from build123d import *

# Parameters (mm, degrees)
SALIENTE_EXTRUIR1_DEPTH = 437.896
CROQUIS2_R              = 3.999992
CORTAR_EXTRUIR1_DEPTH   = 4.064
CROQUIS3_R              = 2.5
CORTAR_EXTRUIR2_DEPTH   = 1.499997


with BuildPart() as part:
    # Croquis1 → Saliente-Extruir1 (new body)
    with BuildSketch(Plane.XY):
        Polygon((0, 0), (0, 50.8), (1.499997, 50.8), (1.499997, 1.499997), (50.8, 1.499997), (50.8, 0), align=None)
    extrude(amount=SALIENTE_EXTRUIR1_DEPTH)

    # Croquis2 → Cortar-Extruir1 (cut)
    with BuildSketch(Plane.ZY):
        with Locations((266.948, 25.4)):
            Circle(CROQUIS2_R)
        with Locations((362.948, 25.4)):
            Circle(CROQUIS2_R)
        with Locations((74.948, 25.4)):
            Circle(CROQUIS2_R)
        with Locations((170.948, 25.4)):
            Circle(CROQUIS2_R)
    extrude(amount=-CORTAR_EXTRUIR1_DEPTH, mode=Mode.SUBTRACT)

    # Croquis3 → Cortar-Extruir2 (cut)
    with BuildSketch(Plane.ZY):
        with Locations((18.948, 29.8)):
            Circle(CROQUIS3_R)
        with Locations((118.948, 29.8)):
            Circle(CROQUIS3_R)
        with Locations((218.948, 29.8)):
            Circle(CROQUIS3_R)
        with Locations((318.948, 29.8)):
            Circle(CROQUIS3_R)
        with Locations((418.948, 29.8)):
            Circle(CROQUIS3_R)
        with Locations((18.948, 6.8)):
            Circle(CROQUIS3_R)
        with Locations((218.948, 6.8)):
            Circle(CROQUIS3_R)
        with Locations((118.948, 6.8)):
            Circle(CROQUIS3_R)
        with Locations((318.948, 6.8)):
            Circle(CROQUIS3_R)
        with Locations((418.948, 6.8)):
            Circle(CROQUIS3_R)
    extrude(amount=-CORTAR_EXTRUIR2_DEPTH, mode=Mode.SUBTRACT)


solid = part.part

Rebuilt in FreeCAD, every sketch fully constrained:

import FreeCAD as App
import Part
import Sketcher

V = App.Vector
Q = App.Units.Quantity


def add_polygon(sketch, points):
    """Adds a closed chain of lines whose ends are joined by coincident constraints."""
    first, n = sketch.GeometryCount, len(points)
    for a, b in zip(points, points[1:] + points[:1]):
        sketch.addGeometry(Part.LineSegment(App.Vector(*a, 0), App.Vector(*b, 0)), False)
    for i in range(n):
        sketch.addConstraint(Sketcher.Constraint("Coincident", first + i, 2, first + (i + 1) % n, 1))

doc = App.newDocument("Part")
body = doc.addObject("PartDesign::Body", "Body")

# Sketch on XY plane
sketch1 = doc.addObject("Sketcher::SketchObject", "Sketch")
body.addObject(sketch1)
sketch1.AttachmentSupport = (doc.XY_Plane, [""])
sketch1.MapMode = "FlatFace"
add_polygon(sketch1, [(0, 50.8), (0, 0), (50.8, 0), (50.8, 1.5), (1.5, 1.5), (1.5, 50.8)])  # lines 0-5
sketch1.addConstraint(Sketcher.Constraint("Vertical", 0))
sketch1.addConstraint(Sketcher.Constraint("Horizontal", 1))
sketch1.addConstraint(Sketcher.Constraint("Vertical", 2))
sketch1.addConstraint(Sketcher.Constraint("Horizontal", 3))
sketch1.addConstraint(Sketcher.Constraint("Vertical", 4))
sketch1.addConstraint(Sketcher.Constraint("Horizontal", 5))
sketch1.addConstraint(Sketcher.Constraint("Coincident", 0, 2, -1, 1))
sketch1.addConstraint(Sketcher.Constraint("Equal", 1, 0))
sketch1.addConstraint(Sketcher.Constraint("Equal", 5, 2))
sketch1.addConstraint(Sketcher.Constraint("DistanceX", 1, 1, 1, 2, Q("2 in")))
sketch1.addConstraint(Sketcher.Constraint("DistanceX", 3, 2, 3, 1, 49.300003))
pad1 = doc.addObject("PartDesign::Pad", "Pad")
body.addObject(pad1)
pad1.Profile = sketch1
pad1.Length = Q("17.24 in")

# Sketch on YZ plane
sketch2 = doc.addObject("Sketcher::SketchObject", "Sketch001")
body.addObject(sketch2)
sketch2.AttachmentSupport = (doc.YZ_Plane, [""])
sketch2.MapMode = "FlatFace"
sketch2.addGeometry(Part.Circle(V(25.4, 266.9, 0), V(0, 0, 1), 4), False)
sketch2.addGeometry(Part.Circle(V(25.4, 362.9, 0), V(0, 0, 1), 4), False)
sketch2.addGeometry(Part.Circle(V(25.4, 74.9, 0), V(0, 0, 1), 4), False)
sketch2.addGeometry(Part.Circle(V(25.4, 170.9, 0), V(0, 0, 1), 4), False)
sketch2.addConstraint(Sketcher.Constraint("Equal", 0, 1))
sketch2.addConstraint(Sketcher.Constraint("Equal", 1, 2))
sketch2.addConstraint(Sketcher.Constraint("Equal", 2, 3))
sketch2.addConstraint(Sketcher.Constraint("Vertical", 0, 3, 1, 3))
sketch2.addConstraint(Sketcher.Constraint("Vertical", 1, 3, 2, 3))
sketch2.addConstraint(Sketcher.Constraint("Vertical", 2, 3, 3, 3))
sketch2.addConstraint(Sketcher.Constraint("DistanceX", -1, 1, 0, 3, Q("1 in")))
sketch2.addConstraint(Sketcher.Constraint("Diameter", 0, 7.999984))
sketch2.addConstraint(Sketcher.Constraint("DistanceY", -1, 1, 0, 3, 266.948))
sketch2.addConstraint(Sketcher.Constraint("DistanceY", -1, 1, 1, 3, 362.948))
sketch2.addConstraint(Sketcher.Constraint("DistanceY", -1, 1, 2, 3, 74.948))
sketch2.addConstraint(Sketcher.Constraint("DistanceY", -1, 1, 3, 3, 170.948))
pocket1 = doc.addObject("PartDesign::Pocket", "Pocket")
body.addObject(pocket1)
pocket1.Profile = sketch2
pocket1.Length = Q("0.16 in")
pocket1.Reversed = True

# Sketch on YZ plane
sketch3 = doc.addObject("Sketcher::SketchObject", "Sketch002")
body.addObject(sketch3)
sketch3.AttachmentSupport = (doc.YZ_Plane, [""])
sketch3.MapMode = "FlatFace"
sketch3.addGeometry(Part.Circle(V(29.8, 18.9, 0), V(0, 0, 1), 2.5), False)
sketch3.addGeometry(Part.Circle(V(29.8, 118.9, 0), V(0, 0, 1), 2.5), False)
sketch3.addGeometry(Part.Circle(V(29.8, 218.9, 0), V(0, 0, 1), 2.5), False)
sketch3.addGeometry(Part.Circle(V(29.8, 318.9, 0), V(0, 0, 1), 2.5), False)
sketch3.addGeometry(Part.Circle(V(29.8, 418.9, 0), V(0, 0, 1), 2.5), False)
sketch3.addGeometry(Part.Circle(V(6.8, 18.9, 0), V(0, 0, 1), 2.5), False)
sketch3.addGeometry(Part.Circle(V(6.8, 218.9, 0), V(0, 0, 1), 2.5), False)
sketch3.addGeometry(Part.Circle(V(6.8, 118.9, 0), V(0, 0, 1), 2.5), False)
sketch3.addGeometry(Part.Circle(V(6.8, 318.9, 0), V(0, 0, 1), 2.5), False)
sketch3.addGeometry(Part.Circle(V(6.8, 418.9, 0), V(0, 0, 1), 2.5), False)
sketch3.addConstraint(Sketcher.Constraint("Equal", 0, 1))
sketch3.addConstraint(Sketcher.Constraint("Equal", 1, 2))
sketch3.addConstraint(Sketcher.Constraint("Equal", 2, 3))
sketch3.addConstraint(Sketcher.Constraint("Equal", 3, 4))
sketch3.addConstraint(Sketcher.Constraint("Equal", 4, 5))
sketch3.addConstraint(Sketcher.Constraint("Equal", 5, 6))
sketch3.addConstraint(Sketcher.Constraint("Equal", 6, 7))
sketch3.addConstraint(Sketcher.Constraint("Equal", 7, 8))
sketch3.addConstraint(Sketcher.Constraint("Equal", 8, 9))
sketch3.addConstraint(Sketcher.Constraint("Horizontal", 0, 3, 5, 3))
sketch3.addConstraint(Sketcher.Constraint("Horizontal", 2, 3, 6, 3))
sketch3.addConstraint(Sketcher.Constraint("Horizontal", 1, 3, 7, 3))
sketch3.addConstraint(Sketcher.Constraint("Horizontal", 3, 3, 8, 3))
sketch3.addConstraint(Sketcher.Constraint("Horizontal", 4, 3, 9, 3))
sketch3.addConstraint(Sketcher.Constraint("Vertical", 0, 3, 1, 3))
sketch3.addConstraint(Sketcher.Constraint("Vertical", 1, 3, 2, 3))
sketch3.addConstraint(Sketcher.Constraint("Vertical", 2, 3, 3, 3))
sketch3.addConstraint(Sketcher.Constraint("Vertical", 3, 3, 4, 3))
sketch3.addConstraint(Sketcher.Constraint("Vertical", 5, 3, 6, 3))
sketch3.addConstraint(Sketcher.Constraint("Vertical", 6, 3, 7, 3))
sketch3.addConstraint(Sketcher.Constraint("Vertical", 7, 3, 8, 3))
sketch3.addConstraint(Sketcher.Constraint("Vertical", 8, 3, 9, 3))
sketch3.addConstraint(Sketcher.Constraint("Diameter", 0, 5.0))
sketch3.addConstraint(Sketcher.Constraint("DistanceY", -1, 1, 2, 3, Q("8.62 in")))
sketch3.addConstraint(Sketcher.Constraint("DistanceX", -1, 1, 0, 3, 29.8))
sketch3.addConstraint(Sketcher.Constraint("DistanceY", -1, 1, 0, 3, 18.948))
sketch3.addConstraint(Sketcher.Constraint("DistanceY", -1, 1, 1, 3, 118.948))
sketch3.addConstraint(Sketcher.Constraint("DistanceY", -1, 1, 3, 3, 318.948))
sketch3.addConstraint(Sketcher.Constraint("DistanceY", -1, 1, 4, 3, 418.948))
sketch3.addConstraint(Sketcher.Constraint("DistanceX", -1, 1, 5, 3, 6.8))
pocket2 = doc.addObject("PartDesign::Pocket", "Pocket001")
body.addObject(pocket2)
pocket2.Profile = sketch3
pocket2.Length = 1.499997
pocket2.Reversed = True

doc.recompute()
